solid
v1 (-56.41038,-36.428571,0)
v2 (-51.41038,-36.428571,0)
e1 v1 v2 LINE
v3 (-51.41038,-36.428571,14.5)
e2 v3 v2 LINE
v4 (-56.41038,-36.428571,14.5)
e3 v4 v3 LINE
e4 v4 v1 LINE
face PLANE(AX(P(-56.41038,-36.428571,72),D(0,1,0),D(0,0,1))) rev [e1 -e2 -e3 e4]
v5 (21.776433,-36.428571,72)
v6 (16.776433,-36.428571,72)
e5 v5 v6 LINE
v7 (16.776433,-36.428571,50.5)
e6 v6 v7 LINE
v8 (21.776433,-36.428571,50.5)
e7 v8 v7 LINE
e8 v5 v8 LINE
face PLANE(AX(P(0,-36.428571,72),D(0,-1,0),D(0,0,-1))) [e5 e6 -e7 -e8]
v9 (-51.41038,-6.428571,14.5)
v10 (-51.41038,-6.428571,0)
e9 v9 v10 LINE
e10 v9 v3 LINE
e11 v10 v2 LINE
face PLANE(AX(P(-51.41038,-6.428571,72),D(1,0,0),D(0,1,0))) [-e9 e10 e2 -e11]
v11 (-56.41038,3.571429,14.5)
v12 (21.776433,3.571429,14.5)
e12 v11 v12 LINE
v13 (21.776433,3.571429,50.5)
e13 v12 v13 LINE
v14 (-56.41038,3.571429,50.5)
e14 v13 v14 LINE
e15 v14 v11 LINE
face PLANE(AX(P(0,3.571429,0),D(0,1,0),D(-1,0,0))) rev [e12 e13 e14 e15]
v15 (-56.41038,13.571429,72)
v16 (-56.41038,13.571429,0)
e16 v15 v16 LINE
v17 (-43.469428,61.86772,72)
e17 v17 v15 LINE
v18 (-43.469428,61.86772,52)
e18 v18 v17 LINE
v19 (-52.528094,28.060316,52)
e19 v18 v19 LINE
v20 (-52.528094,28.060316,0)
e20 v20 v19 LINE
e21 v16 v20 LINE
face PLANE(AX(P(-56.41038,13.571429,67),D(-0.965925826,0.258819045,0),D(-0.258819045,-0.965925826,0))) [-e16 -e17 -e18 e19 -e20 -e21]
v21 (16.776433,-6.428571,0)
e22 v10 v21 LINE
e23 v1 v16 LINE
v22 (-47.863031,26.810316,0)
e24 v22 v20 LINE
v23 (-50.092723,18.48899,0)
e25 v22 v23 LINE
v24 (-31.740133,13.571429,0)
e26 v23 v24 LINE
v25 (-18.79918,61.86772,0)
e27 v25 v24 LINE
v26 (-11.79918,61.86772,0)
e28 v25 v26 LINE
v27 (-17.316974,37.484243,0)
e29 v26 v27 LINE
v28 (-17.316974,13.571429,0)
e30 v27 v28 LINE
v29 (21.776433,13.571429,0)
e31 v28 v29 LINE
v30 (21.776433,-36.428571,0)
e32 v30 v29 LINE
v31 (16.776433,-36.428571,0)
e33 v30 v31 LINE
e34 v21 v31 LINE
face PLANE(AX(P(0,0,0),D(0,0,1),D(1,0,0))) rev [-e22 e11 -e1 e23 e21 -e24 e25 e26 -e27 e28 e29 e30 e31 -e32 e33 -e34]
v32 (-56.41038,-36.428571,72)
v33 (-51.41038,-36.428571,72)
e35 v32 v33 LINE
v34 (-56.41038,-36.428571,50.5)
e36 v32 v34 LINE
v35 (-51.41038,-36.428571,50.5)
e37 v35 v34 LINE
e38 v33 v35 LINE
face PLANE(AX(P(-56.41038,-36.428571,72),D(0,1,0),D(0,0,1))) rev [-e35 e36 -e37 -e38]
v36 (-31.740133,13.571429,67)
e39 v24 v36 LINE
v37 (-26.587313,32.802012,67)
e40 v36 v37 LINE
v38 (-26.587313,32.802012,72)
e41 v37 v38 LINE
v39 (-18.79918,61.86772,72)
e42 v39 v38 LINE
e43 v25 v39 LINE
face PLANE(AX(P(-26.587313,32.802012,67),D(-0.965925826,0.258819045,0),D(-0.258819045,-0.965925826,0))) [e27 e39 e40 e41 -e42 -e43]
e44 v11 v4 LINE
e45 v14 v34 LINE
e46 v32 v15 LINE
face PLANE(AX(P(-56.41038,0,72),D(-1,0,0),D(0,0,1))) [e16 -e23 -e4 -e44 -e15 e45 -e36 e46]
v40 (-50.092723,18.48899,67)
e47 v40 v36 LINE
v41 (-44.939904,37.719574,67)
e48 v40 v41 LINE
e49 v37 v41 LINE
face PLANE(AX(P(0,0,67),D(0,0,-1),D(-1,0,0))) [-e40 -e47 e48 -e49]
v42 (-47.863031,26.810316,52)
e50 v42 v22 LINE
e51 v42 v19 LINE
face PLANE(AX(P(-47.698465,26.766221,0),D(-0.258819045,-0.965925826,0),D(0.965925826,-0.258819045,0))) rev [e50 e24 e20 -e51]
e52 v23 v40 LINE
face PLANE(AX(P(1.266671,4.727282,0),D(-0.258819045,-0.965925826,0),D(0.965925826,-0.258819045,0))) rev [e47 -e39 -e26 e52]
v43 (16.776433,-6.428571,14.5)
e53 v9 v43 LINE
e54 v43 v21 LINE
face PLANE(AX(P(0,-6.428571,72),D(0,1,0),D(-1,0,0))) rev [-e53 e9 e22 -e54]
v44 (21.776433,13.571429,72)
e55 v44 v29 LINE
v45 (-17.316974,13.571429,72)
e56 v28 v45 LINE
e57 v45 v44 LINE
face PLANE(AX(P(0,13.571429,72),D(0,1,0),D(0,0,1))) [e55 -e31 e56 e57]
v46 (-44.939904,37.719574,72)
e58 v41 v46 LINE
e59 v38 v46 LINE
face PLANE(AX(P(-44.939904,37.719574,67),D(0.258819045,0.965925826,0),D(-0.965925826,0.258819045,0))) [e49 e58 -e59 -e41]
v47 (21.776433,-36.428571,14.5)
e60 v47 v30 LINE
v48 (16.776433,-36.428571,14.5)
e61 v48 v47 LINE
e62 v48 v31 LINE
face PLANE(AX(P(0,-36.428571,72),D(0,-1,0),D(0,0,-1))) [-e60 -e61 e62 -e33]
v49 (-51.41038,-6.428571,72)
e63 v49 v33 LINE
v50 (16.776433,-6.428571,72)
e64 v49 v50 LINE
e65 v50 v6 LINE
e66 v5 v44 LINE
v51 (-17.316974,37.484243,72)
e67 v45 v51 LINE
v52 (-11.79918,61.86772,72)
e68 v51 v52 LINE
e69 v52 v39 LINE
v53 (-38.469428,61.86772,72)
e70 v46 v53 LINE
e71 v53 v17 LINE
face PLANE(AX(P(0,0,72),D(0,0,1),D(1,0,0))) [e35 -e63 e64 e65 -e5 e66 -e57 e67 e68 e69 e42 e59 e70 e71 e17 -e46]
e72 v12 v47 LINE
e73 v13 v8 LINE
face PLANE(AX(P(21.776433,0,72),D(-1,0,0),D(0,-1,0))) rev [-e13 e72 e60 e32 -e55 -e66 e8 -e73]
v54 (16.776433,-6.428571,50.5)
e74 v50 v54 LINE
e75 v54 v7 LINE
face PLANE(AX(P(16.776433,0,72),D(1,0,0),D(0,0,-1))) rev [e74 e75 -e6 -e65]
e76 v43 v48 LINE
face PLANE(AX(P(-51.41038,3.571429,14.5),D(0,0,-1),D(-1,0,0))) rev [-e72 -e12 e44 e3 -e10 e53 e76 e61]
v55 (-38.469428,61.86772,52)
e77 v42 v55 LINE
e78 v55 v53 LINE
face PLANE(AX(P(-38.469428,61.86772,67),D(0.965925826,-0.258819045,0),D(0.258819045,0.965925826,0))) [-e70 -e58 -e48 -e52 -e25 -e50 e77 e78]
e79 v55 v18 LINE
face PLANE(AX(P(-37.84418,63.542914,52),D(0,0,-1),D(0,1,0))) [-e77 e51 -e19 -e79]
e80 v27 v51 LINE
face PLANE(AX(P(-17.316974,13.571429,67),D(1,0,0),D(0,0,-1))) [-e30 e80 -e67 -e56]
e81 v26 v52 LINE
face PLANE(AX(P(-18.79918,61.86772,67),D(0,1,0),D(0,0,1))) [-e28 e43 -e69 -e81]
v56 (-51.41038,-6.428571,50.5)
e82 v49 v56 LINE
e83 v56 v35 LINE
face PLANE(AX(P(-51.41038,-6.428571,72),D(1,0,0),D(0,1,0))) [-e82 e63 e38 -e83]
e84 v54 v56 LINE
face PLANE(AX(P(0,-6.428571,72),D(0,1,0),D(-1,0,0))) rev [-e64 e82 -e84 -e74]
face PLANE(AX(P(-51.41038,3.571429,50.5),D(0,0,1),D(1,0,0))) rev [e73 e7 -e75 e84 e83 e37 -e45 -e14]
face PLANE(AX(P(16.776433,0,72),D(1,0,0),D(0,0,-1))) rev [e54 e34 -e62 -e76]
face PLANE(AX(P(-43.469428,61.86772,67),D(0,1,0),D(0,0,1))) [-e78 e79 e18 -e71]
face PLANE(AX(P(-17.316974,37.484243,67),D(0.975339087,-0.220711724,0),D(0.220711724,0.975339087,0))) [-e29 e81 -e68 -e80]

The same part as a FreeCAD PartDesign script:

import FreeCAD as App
import Part
import Sketcher

V = App.Vector
Q = App.Units.Quantity

doc = App.newDocument("Part")
body = doc.addObject("PartDesign::Body", "Body")

# Sketch on XY plane
sketch1 = body.newObject("Sketcher::SketchObject", "Sketch")
sketch1.AttachmentSupport = (doc.getObject("XY_Plane"), [""])
sketch1.MapMode = "FlatFace"
sketch1.addGeometry([
    Part.LineSegment(V(-56, 14, 0), V(-56, -36, 0)),  # 0
    Part.LineSegment(V(-56, -36, 0), V(-51, -36, 0)),  # 1
    Part.LineSegment(V(-51, -36, 0), V(-51, -6, 0)),  # 2
    Part.LineSegment(V(-51, -6, 0), V(17, -6, 0)),  # 3
    Part.LineSegment(V(17, -6, 0), V(17, -36, 0)),  # 4
    Part.LineSegment(V(17, -36, 0), V(22, -36, 0)),  # 5
    Part.LineSegment(V(22, -36, 0), V(22, 14, 0)),  # 6
    Part.LineSegment(V(22, 14, 0), V(-56, 14, 0)),  # 7
], False)
sketch1.addConstraint([
    Sketcher.Constraint("Coincident", 0, 2, 1, 1),
    Sketcher.Constraint("Coincident", 1, 2, 2, 1),
    Sketcher.Constraint("Coincident", 2, 2, 3, 1),
    Sketcher.Constraint("Coincident", 3, 2, 4, 1),
    Sketcher.Constraint("Coincident", 4, 2, 5, 1),
    Sketcher.Constraint("Coincident", 5, 2, 6, 1),
    Sketcher.Constraint("Coincident", 6, 2, 7, 1),
    Sketcher.Constraint("Coincident", 7, 2, 0, 1),
    Sketcher.Constraint("Vertical", 0),
    Sketcher.Constraint("Horizontal", 1),
    Sketcher.Constraint("Vertical", 2),
    Sketcher.Constraint("Horizontal", 3),
    Sketcher.Constraint("Vertical", 4),
    Sketcher.Constraint("Horizontal", 5),
    Sketcher.Constraint("Vertical", 6),
    Sketcher.Constraint("Horizontal", 7),
    Sketcher.Constraint("Horizontal", 1, 2, 4, 2),
    Sketcher.Constraint("Equal", 1, 5),
    Sketcher.Constraint("DistanceX", 1, 1, 1, 2, Q("5 mm")),
    Sketcher.Constraint("DistanceY", 0, 2, 0, 1, Q("50 mm")),
    Sketcher.Constraint("DistanceY", 2, 1, 2, 2, Q("30 mm")),
    Sketcher.Constraint("DistanceX", 3, 1, 3, 2, Q("68.186813 mm")),
    Sketcher.Constraint("DistanceX", 0, 2, -1, 1, Q("56.41038 mm")),
    Sketcher.Constraint("DistanceY", 0, 2, -1, 1, Q("36.428571 mm")),
])
pad1 = body.newObject("PartDesign::Pad", "Pad")
pad1.Profile = sketch1
pad1.Length = 72

# Sketch on XZ plane
sketch2 = body.newObject("Sketcher::SketchObject", "Sketch001")
sketch2.AttachmentSupport = (doc.getObject("XZ_Plane"), [""])
sketch2.MapMode = "FlatFace"
sketch2.AttachmentOffset = App.Placement(V(0, 0, 6.428571), App.Rotation())
sketch2.addGeometry([
    Part.LineSegment(V(-51, 50, 0), V(-51, 14, 0)),
    Part.LineSegment(V(-51, 14, 0), V(17, 14, 0)),
    Part.LineSegment(V(17, 14, 0), V(17, 50, 0)),
    Part.LineSegment(V(17, 50, 0), V(-51, 50, 0)),
], False)
sketch2.addConstraint([
    Sketcher.Constraint("Coincident", 0, 2, 1, 1),
    Sketcher.Constraint("Coincident", 1, 2, 2, 1),
    Sketcher.Constraint("Coincident", 2, 2, 3, 1),
    Sketcher.Constraint("Coincident", 3, 2, 0, 1),
    Sketcher.Constraint("Vertical", 0),
    Sketcher.Constraint("Horizontal", 1),
    Sketcher.Constraint("Vertical", 2),
    Sketcher.Constraint("Horizontal", 3),
    Sketcher.Constraint("DistanceY", 0, 2, 0, 1, Q("36 mm")),
    Sketcher.Constraint("DistanceY", -1, 1, 0, 2, Q("14.5 mm")),
    Sketcher.Constraint("DistanceX", 1, 1, 1, 2, Q("68.186813 mm")),
    Sketcher.Constraint("DistanceX", 0, 2, -1, 1, Q("51.41038 mm")),
])
pocket1 = body.newObject("PartDesign::Pocket", "Pocket")
pocket1.Profile = sketch2
pocket1.Length = 10

# Sketch on XZ plane
sketch3 = body.newObject("Sketcher::SketchObject", "Sketch002")
sketch3.AttachmentSupport = (doc.getObject("XZ_Plane"), [""])
sketch3.MapMode = "FlatFace"
sketch3.AttachmentOffset = App.Placement(V(0, 0, 36.428571), App.Rotation())
sketch3.addGeometry([
    Part.LineSegment(V(-56, 50, 0), V(-56, 14, 0)),
    Part.LineSegment(V(-56, 14, 0), V(-51, 14, 0)),
    Part.LineSegment(V(-51, 14, 0), V(-51, 50, 0)),
    Part.LineSegment(V(-51, 50, 0), V(-56, 50, 0)),
], False)
sketch3.addConstraint([
    Sketcher.Constraint("Coincident", 0, 2, 1, 1),
    Sketcher.Constraint("Coincident", 1, 2, 2, 1),
    Sketcher.Constraint("Coincident", 2, 2, 3, 1),
    Sketcher.Constraint("Coincident", 3, 2, 0, 1),
    Sketcher.Constraint("Vertical", 0),
    Sketcher.Constraint("Horizontal", 1),
    Sketcher.Constraint("Vertical", 2),
    Sketcher.Constraint("Horizontal", 3),
    Sketcher.Constraint("DistanceX", 1, 1, 1, 2, Q("5 mm")),
    Sketcher.Constraint("DistanceY", 0, 2, 0, 1, Q("36 mm")),
    Sketcher.Constraint("DistanceY", -1, 1, 0, 2, Q("14.5 mm")),
    Sketcher.Constraint("DistanceX", 0, 2, -1, 1, Q("56.41038 mm")),
])
pocket2 = body.newObject("PartDesign::Pocket", "Pocket001")
pocket2.Profile = sketch3
pocket2.Length = 40

# Sketch on XZ plane
sketch4 = body.newObject("Sketcher::SketchObject", "Sketch003")
sketch4.AttachmentSupport = (doc.getObject("XZ_Plane"), [""])
sketch4.MapMode = "FlatFace"
sketch4.AttachmentOffset = App.Placement(V(0, 0, 36.428571), App.Rotation())
sketch4.addGeometry([
    Part.LineSegment(V(17, 50, 0), V(17, 14, 0)),
    Part.LineSegment(V(17, 14, 0), V(22, 14, 0)),
    Part.LineSegment(V(22, 14, 0), V(22, 50, 0)),
    Part.LineSegment(V(22, 50, 0), V(17, 50, 0)),
], False)
sketch4.addConstraint([
    Sketcher.Constraint("Coincident", 0, 2, 1, 1),
    Sketcher.Constraint("Coincident", 1, 2, 2, 1),
    Sketcher.Constraint("Coincident", 2, 2, 3, 1),
    Sketcher.Constraint("Coincident", 3, 2, 0, 1),
    Sketcher.Constraint("Vertical", 0),
    Sketcher.Constraint("Horizontal", 1),
    Sketcher.Constraint("Vertical", 2),
    Sketcher.Constraint("Horizontal", 3),
    Sketcher.Constraint("DistanceX", 1, 1, 1, 2, Q("5 mm")),
    Sketcher.Constraint("DistanceY", 0, 2, 0, 1, Q("36 mm")),
    Sketcher.Constraint("DistanceY", -1, 1, 0, 2, Q("14.5 mm")),
    Sketcher.Constraint("DistanceX", -1, 1, 0, 2, Q("16.776433 mm")),
])
pocket3 = body.newObject("PartDesign::Pocket", "Pocket002")
pocket3.Profile = sketch4
pocket3.Length = 40

# Sketch on XY plane
sketch5 = body.newObject("Sketcher::SketchObject", "Sketch004")
sketch5.AttachmentSupport = (doc.getObject("XY_Plane"), [""])
sketch5.MapMode = "FlatFace"
sketch5.AttachmentOffset = App.Placement(V(0, 0, 72), App.Rotation())
sketch5.addGeometry([
    Part.LineSegment(V(-43, 62, 0), V(-56, 14, 0)),  # 0
    Part.LineSegment(V(-56, 14, 0), V(-17, 14, 0)),  # 1
    Part.LineSegment(V(-17, 14, 0), V(-17, 37, 0)),  # 2
    Part.LineSegment(V(-17, 37, 0), V(-12, 62, 0)),  # 3
    Part.LineSegment(V(-12, 62, 0), V(-19, 62, 0)),  # 4
    Part.LineSegment(V(-19, 62, 0), V(-27, 33, 0)),  # 5
    Part.LineSegment(V(-27, 33, 0), V(-45, 38, 0)),  # 6
    Part.LineSegment(V(-45, 38, 0), V(-38, 62, 0)),  # 7
    Part.LineSegment(V(-38, 62, 0), V(-43, 62, 0)),  # 8
], False)
sketch5.addConstraint([
    Sketcher.Constraint("Coincident", 0, 2, 1, 1),
    Sketcher.Constraint("Coincident", 1, 2, 2, 1),
    Sketcher.Constraint("Coincident", 2, 2, 3, 1),
    Sketcher.Constraint("Coincident", 3, 2, 4, 1),
    Sketcher.Constraint("Coincident", 4, 2, 5, 1),
    Sketcher.Constraint("Coincident", 5, 2, 6, 1),
    Sketcher.Constraint("Coincident", 6, 2, 7, 1),
    Sketcher.Constraint("Coincident", 7, 2, 8, 1),
    Sketcher.Constraint("Coincident", 8, 2, 0, 1),
    Sketcher.Constraint("Horizontal", 1),
    Sketcher.Constraint("Vertical", 2),
    Sketcher.Constraint("Horizontal", 4),
    Sketcher.Constraint("Horizontal", 8),
    Sketcher.Constraint("Parallel", 0, 5),
    Sketcher.Constraint("Perpendicular", 5, 6),
    Sketcher.Constraint("Perpendicular", 6, 7),
    Sketcher.Constraint("Horizontal", 4, 2, 7, 2),
    Sketcher.Constraint("Equal", 3, 7),
    Sketcher.Constraint("DistanceX", 4, 2, 4, 1, Q("7 mm")),
    Sketcher.Constraint("DistanceX", 8, 2, 8, 1, Q("5 mm")),
    Sketcher.Constraint("Angle", 0, Q("-105 deg")),
    Sketcher.Constraint("Distance", 0, Q("50 mm")),
    Sketcher.Constraint("Distance", 3, Q("25 mm")),
    Sketcher.Constraint("Distance", 6, Q("19 mm")),
    Sketcher.Constraint("DistanceX", 1, 1, 1, 2, Q("39.093407 mm")),
    Sketcher.Constraint("DistanceX", 0, 2, -1, 1, Q("56.41038 mm")),
    Sketcher.Constraint("DistanceY", -1, 1, 0, 2, Q("13.571429 mm")),
])
pad2 = body.newObject("PartDesign::Pad", "Pad001")
pad2.Profile = sketch5
pad2.Length = 5
pad2.Reversed = True

# Sketch on XY plane
sketch6 = body.newObject("Sketcher::SketchObject", "Sketch005")
sketch6.AttachmentSupport = (doc.getObject("XY_Plane"), [""])
sketch6.MapMode = "FlatFace"
sketch6.AttachmentOffset = App.Placement(V(0, 0, 67), App.Rotation())
sketch6.addGeometry([
    Part.LineSegment(V(-17, 14, 0), V(-32, 14, 0)),  # 0
    Part.LineSegment(V(-32, 14, 0), V(-27, 33, 0)),  # 1
    Part.LineSegment(V(-27, 33, 0), V(-19, 62, 0)),  # 2
    Part.LineSegment(V(-19, 62, 0), V(-12, 62, 0)),  # 3
    Part.LineSegment(V(-12, 62, 0), V(-17, 37, 0)),  # 4
    Part.LineSegment(V(-17, 37, 0), V(-17, 14, 0)),  # 5
    Part.LineSegment(V(-32, 14, 0), V(-56, 14, 0)),  # 6
    Part.LineSegment(V(-56, 14, 0), V(-43, 62, 0)),  # 7
    Part.LineSegment(V(-43, 62, 0), V(-38, 62, 0)),  # 8
    Part.LineSegment(V(-38, 62, 0), V(-45, 38, 0)),  # 9
    Part.LineSegment(V(-45, 38, 0), V(-50, 18, 0)),  # 10
    Part.LineSegment(V(-50, 18, 0), V(-32, 14, 0)),  # 11
], False)
sketch6.addConstraint([
    Sketcher.Constraint("Coincident", 0, 2, 1, 1),
    Sketcher.Constraint("Coincident", 1, 2, 2, 1),
    Sketcher.Constraint("Coincident", 2, 2, 3, 1),
    Sketcher.Constraint("Coincident", 3, 2, 4, 1),
    Sketcher.Constraint("Coincident", 4, 2, 5, 1),
    Sketcher.Constraint("Coincident", 5, 2, 0, 1),
    Sketcher.Constraint("Coincident", 6, 2, 7, 1),
    Sketcher.Constraint("Coincident", 7, 2, 8, 1),
    Sketcher.Constraint("Coincident", 8, 2, 9, 1),
    Sketcher.Constraint("Coincident", 9, 2, 10, 1),
    Sketcher.Constraint("Coincident", 10, 2, 11, 1),
    Sketcher.Constraint("Coincident", 11, 2, 6, 1),
    Sketcher.Constraint("Horizontal", 0),
    Sketcher.Constraint("Horizontal", 3),
    Sketcher.Constraint("Vertical", 5),
    Sketcher.Constraint("Horizontal", 6),
    Sketcher.Constraint("Horizontal", 8),
    Sketcher.Constraint("Coincident", 11, 2, 0, 2),
    Sketcher.Constraint("Parallel", 1, 2),
    Sketcher.Constraint("Parallel", 2, 7),
    Sketcher.Constraint("Parallel", 7, 9),
    Sketcher.Constraint("Parallel", 9, 10),
    Sketcher.Constraint("Perpendicular", 10, 11),
    Sketcher.Constraint("Horizontal", 3, 2, 7, 2),
    Sketcher.Constraint("Equal", 4, 9),
    Sketcher.Constraint("Equal", 1, 10),
    Sketcher.Constraint("DistanceX", 3, 1, 3, 2, Q("7 mm")),
    Sketcher.Constraint("DistanceX", 8, 1, 8, 2, Q("5 mm")),
    Sketcher.Constraint("Angle", 1, Q("75 deg")),
    Sketcher.Constraint("Distance", 4, Q("25 mm")),
    Sketcher.Constraint("Distance", 7, Q("50 mm")),
    Sketcher.Constraint("Distance", 11, Q("19 mm")),
    Sketcher.Constraint("DistanceX", 0, 2, 0, 1, Q("14.423159 mm")),
    Sketcher.Constraint("DistanceY", -1, 1, 0, 2, Q("13.571429 mm")),
    Sketcher.Constraint("DistanceX", 2, 2, -1, 1, Q("18.79918 mm")),
])
pad3 = body.newObject("PartDesign::Pad", "Pad002")
pad3.Profile = sketch6
pad3.Length = 67
pad3.Reversed = True

# Sketch on an angled plane
sketch7 = body.newObject("Sketcher::SketchObject", "Sketch006")
sketch7.Placement = App.Placement(V(-56.024458, 15.011708, 0), App.Rotation(V(0, 0, 1), V(0.258819045, 0.965925826, 0), V(-0.965925826, 0.258819045, 0), "ZXY"))
sketch7.addGeometry([
    Part.LineSegment(V(0, 52, 0), V(0, 14, 0)),
    Part.LineSegment(V(0, 14, 0), V(52, 14, 0)),
    Part.LineSegment(V(52, 14, 0), V(52, 52, 0)),
    Part.LineSegment(V(52, 52, 0), V(0, 52, 0)),
], False)
sketch7.addConstraint([
    Sketcher.Constraint("Coincident", 0, 2, 1, 1),
    Sketcher.Constraint("Coincident", 1, 2, 2, 1),
    Sketcher.Constraint("Coincident", 2, 2, 3, 1),
    Sketcher.Constraint("Coincident", 3, 2, 0, 1),
    Sketcher.Constraint("Vertical", 0),
    Sketcher.Constraint("Horizontal", 1),
    Sketcher.Constraint("Vertical", 2),
    Sketcher.Constraint("Horizontal", 3),
    Sketcher.Constraint("PointOnObject", 0, 2, -2),
    Sketcher.Constraint("DistanceX", 1, 1, 1, 2, Q("52 mm")),
    Sketcher.Constraint("DistanceY", 0, 2, 0, 1, Q("38.074034 mm")),
    Sketcher.Constraint("DistanceY", -1, 1, 0, 2, Q("13.508913 mm")),
])
pocket4 = body.newObject("PartDesign::Pocket", "Pocket003")
pocket4.Profile = sketch7
pocket4.Length = 5

doc.recompute()
